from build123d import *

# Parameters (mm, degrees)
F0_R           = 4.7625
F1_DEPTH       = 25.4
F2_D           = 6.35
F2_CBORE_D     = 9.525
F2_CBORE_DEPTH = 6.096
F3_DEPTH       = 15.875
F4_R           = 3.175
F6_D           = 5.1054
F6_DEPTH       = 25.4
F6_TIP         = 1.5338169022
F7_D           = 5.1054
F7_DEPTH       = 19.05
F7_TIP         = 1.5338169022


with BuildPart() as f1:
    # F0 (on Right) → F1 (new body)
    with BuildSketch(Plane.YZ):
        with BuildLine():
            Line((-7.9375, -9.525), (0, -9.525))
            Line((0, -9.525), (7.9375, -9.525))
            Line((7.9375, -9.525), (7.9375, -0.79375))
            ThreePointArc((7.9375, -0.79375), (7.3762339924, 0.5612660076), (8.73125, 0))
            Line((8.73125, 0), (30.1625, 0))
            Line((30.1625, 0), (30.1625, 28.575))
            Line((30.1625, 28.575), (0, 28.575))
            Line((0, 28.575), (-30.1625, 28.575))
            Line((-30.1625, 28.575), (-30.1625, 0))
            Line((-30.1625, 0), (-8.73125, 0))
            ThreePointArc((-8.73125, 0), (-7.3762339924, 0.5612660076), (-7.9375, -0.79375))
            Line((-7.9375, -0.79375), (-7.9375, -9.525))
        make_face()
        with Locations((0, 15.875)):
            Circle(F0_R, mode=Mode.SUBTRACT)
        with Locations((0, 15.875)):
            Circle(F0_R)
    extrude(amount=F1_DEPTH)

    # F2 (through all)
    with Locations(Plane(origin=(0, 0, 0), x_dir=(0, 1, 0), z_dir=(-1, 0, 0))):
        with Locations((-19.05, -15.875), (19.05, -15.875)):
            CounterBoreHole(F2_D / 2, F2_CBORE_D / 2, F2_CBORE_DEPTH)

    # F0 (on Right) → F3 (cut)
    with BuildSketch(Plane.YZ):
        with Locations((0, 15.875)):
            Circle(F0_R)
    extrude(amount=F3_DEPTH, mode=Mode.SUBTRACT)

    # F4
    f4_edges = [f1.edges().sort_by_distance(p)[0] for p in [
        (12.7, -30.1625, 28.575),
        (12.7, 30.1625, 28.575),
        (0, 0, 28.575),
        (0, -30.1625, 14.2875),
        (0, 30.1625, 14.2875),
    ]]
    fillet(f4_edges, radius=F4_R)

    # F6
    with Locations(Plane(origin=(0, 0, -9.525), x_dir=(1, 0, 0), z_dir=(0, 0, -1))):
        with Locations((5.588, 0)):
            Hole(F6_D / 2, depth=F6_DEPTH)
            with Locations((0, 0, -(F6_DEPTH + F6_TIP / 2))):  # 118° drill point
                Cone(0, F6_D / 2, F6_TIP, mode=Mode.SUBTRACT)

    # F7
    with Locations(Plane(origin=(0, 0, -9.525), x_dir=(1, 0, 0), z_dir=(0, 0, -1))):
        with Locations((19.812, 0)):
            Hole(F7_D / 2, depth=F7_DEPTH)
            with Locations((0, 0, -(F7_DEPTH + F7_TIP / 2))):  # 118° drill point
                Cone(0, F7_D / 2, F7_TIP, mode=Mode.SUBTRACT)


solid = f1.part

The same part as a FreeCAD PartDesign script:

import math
import FreeCAD as App
import Part
import Sketcher

V = App.Vector
Q = App.Units.Quantity


def edges_at(feature, points):
    """Names of the edges that pass closest to the given points."""
    edges = feature.Shape.Edges
    near = lambda p: min(range(len(edges)), key=lambda i: edges[i].distToShape(Part.Vertex(*p))[0])
    return sorted({f"Edge{near(p) + 1}" for p in points})

doc = App.newDocument("Part")
body = doc.addObject("PartDesign::Body", "Body")

sketch1 = body.newObject("Sketcher::SketchObject", "Sketch")
sketch1.AttachmentSupport = (doc.getObject("YZ_Plane"), [""])
sketch1.MapMode = "FlatFace"
sketch1.addGeometry(Part.LineSegment(V(-7.9, -9.5, 0), V(7.9, -9.5, 0)), False)
sketch1.addGeometry(Part.LineSegment(V(7.9, -9.5, 0), V(7.9, -0.8, 0)), False)
sketch1.addGeometry(Part.ArcOfCircle(Part.Circle(V(7.9, 0, 0), V(0, 0, 1), 0.8), math.radians(0), math.radians(270)), False)
sketch1.addGeometry(Part.LineSegment(V(8.7, 0, 0), V(30.2, 0, 0)), False)
sketch1.addGeometry(Part.LineSegment(V(30.2, 0, 0), V(30.2, 28.6, 0)), False)
sketch1.addGeometry(Part.LineSegment(V(30.2, 28.6, 0), V(-30.2, 28.6, 0)), False)
sketch1.addGeometry(Part.LineSegment(V(-30.2, 28.6, 0), V(-30.2, 0, 0)), False)
sketch1.addGeometry(Part.LineSegment(V(-30.2, 0, 0), V(-8.7, 0, 0)), False)
sketch1.addGeometry(Part.ArcOfCircle(Part.Circle(V(-7.9, 0, 0), V(0, 0, 1), 0.8), math.radians(-90), math.radians(180)), False)
sketch1.addGeometry(Part.LineSegment(V(-7.9, -0.8, 0), V(-7.9, -9.5, 0)), False)
sketch1.addConstraint(Sketcher.Constraint("Coincident", 0, 2, 1, 1))
sketch1.addConstraint(Sketcher.Constraint("Coincident", 1, 2, 2, 2))
sketch1.addConstraint(Sketcher.Constraint("Coincident", 2, 1, 3, 1))
sketch1.addConstraint(Sketcher.Constraint("Coincident", 3, 2, 4, 1))
sketch1.addConstraint(Sketcher.Constraint("Coincident", 4, 2, 5, 1))
sketch1.addConstraint(Sketcher.Constraint("Coincident", 5, 2, 6, 1))
sketch1.addConstraint(Sketcher.Constraint("Coincident", 6, 2, 7, 1))
sketch1.addConstraint(Sketcher.Constraint("Coincident", 7, 2, 8, 2))
sketch1.addConstraint(Sketcher.Constraint("Coincident", 8, 1, 9, 1))
sketch1.addConstraint(Sketcher.Constraint("Coincident", 9, 2, 0, 1))
sketch1.addConstraint(Sketcher.Constraint("Horizontal", 0))
sketch1.addConstraint(Sketcher.Constraint("Vertical", 1))
sketch1.addConstraint(Sketcher.Constraint("Horizontal", 3))
sketch1.addConstraint(Sketcher.Constraint("Vertical", 4))
sketch1.addConstraint(Sketcher.Constraint("Horizontal", 5))
sketch1.addConstraint(Sketcher.Constraint("Vertical", 6))
sketch1.addConstraint(Sketcher.Constraint("Horizontal", 7))
sketch1.addConstraint(Sketcher.Constraint("Vertical", 9))
sketch1.addConstraint(Sketcher.Constraint("Equal", 2, 8))
sketch1.addConstraint(Sketcher.Constraint("Symmetric", 2, 3, 8, 3, -1, 1))
sketch1.addConstraint(Sketcher.Constraint("Symmetric", 3, 2, 6, 2, -1, 1))
sketch1.addConstraint(Sketcher.Constraint("Symmetric", 1, 2, 8, 1, -2))
sketch1.addConstraint(Sketcher.Constraint("PointOnObject", 2, 1, -1))
sketch1.addConstraint(Sketcher.Constraint("Vertical", 2, 3, 0, 2))
sketch1.addConstraint(Sketcher.Constraint("Radius", 2, Q("0.03125 in")))
sketch1.addConstraint(Sketcher.Constraint("DistanceX", 8, 3, 3, 2, Q("1.5 in")))
sketch1.addConstraint(Sketcher.Constraint("DistanceY", 0, 2, 4, 2, Q("1.5 in")))
sketch1.addConstraint(Sketcher.Constraint("DistanceX", 0, 1, 0, 2, Q("0.625 in")))
sketch1.addConstraint(Sketcher.Constraint("DistanceY", 1, 1, 1, 2, Q("0.34375 in")))
pad1 = body.newObject("PartDesign::Pad", "Pad")
pad1.Profile = sketch1
pad1.Length = Q("1 in")

sketch2 = body.newObject("Sketcher::SketchObject", "Sketch001")
sketch2.AttachmentSupport = (doc.getObject("YZ_Plane"), [""])
sketch2.MapMode = "FlatFace"
sketch2.addGeometry(Part.Circle(V(-19.1, 15.9, 0), V(0, 0, 1), 3.2), False)
sketch2.addGeometry(Part.Circle(V(19.1, 15.9, 0), V(0, 0, 1), 3.2), False)
sketch2.addConstraint(Sketcher.Constraint("Equal", 0, 1))
sketch2.addConstraint(Sketcher.Constraint("Symmetric", 0, 3, 1, 3, -2))
sketch2.addConstraint(Sketcher.Constraint("Diameter", 0, Q("0.25 in")))
sketch2.addConstraint(Sketcher.Constraint("DistanceX", 0, 3, 1, 3, Q("1.5 in")))
sketch2.addConstraint(Sketcher.Constraint("DistanceY", -1, 1, 0, 3, Q("0.625 in")))
doc.recompute()
hole = body.newObject("PartDesign::Hole", "Hole")
hole.Profile = sketch2
hole.ThreadType = "None"
hole.Diameter = Q("0.25 in")
hole.DepthType = "ThroughAll"
hole.HoleCutType = "Counterbore"
hole.HoleCutDiameter = Q("0.375 in")
hole.HoleCutDepth = Q("0.24 in")
hole.Reversed = True

sketch3 = body.newObject("Sketcher::SketchObject", "Sketch002")
sketch3.AttachmentSupport = (doc.getObject("YZ_Plane"), [""])
sketch3.MapMode = "FlatFace"
sketch3.addGeometry(Part.Circle(V(0, 15.9, 0), V(0, 0, 1), 4.8), False)
sketch3.addConstraint(Sketcher.Constraint("PointOnObject", 0, 3, -2))
sketch3.addConstraint(Sketcher.Constraint("Diameter", 0, Q("0.375 in")))
sketch3.addConstraint(Sketcher.Constraint("DistanceY", -1, 1, 0, 3, Q("0.625 in")))
pocket1 = body.newObject("PartDesign::Pocket", "Pocket")
pocket1.Profile = sketch3
pocket1.Length = Q("0.625 in")
pocket1.Reversed = True
doc.recompute()

fillet = body.newObject("PartDesign::Fillet", "Fillet")
fillet.Base = (pocket1, edges_at(pocket1, [
    (12.7, -30.163, 28.575),
    (12.7, 30.163, 28.575),
    (0, 0, 28.575),
    (0, -30.163, 14.287),
    (0, 30.163, 14.287),
]))
fillet.Radius = Q("0.125 in")

sketch4 = body.newObject("Sketcher::SketchObject", "Sketch003")
sketch4.AttachmentSupport = (doc.getObject("XY_Plane"), [""])
sketch4.MapMode = "FlatFace"
sketch4.AttachmentOffset = App.Placement(V(0, 0, -0.375 * 25.4), App.Rotation())
sketch4.addGeometry(Part.Circle(V(5.6, 0, 0), V(0, 0, 1), 2.6), False)
sketch4.addConstraint(Sketcher.Constraint("PointOnObject", 0, 3, -1))
sketch4.addConstraint(Sketcher.Constraint("Diameter", 0, Q("0.201 in")))
sketch4.addConstraint(Sketcher.Constraint("DistanceX", -1, 1, 0, 3, Q("0.22 in")))
doc.recompute()
hole2 = body.newObject("PartDesign::Hole", "Hole001")
hole2.Profile = sketch4
hole2.ThreadType = "None"
hole2.Diameter = Q("0.201 in")
hole2.DepthType = "Dimension"
hole2.Depth = Q("1 in")
hole2.DrillPoint = "Angled"
hole2.DrillPointAngle = 118
hole2.Reversed = True

sketch5 = body.newObject("Sketcher::SketchObject", "Sketch004")
sketch5.AttachmentSupport = (doc.getObject("XY_Plane"), [""])
sketch5.MapMode = "FlatFace"
sketch5.AttachmentOffset = App.Placement(V(0, 0, -0.375 * 25.4), App.Rotation())
sketch5.addGeometry(Part.Circle(V(19.8, 0, 0), V(0, 0, 1), 2.6), False)
sketch5.addConstraint(Sketcher.Constraint("PointOnObject", 0, 3, -1))
sketch5.addConstraint(Sketcher.Constraint("Diameter", 0, Q("0.201 in")))
sketch5.addConstraint(Sketcher.Constraint("DistanceX", -1, 1, 0, 3, Q("0.78 in")))
doc.recompute()
hole3 = body.newObject("PartDesign::Hole", "Hole002")
hole3.Profile = sketch5
hole3.ThreadType = "None"
hole3.Diameter = Q("0.201 in")
hole3.DepthType = "Dimension"
hole3.Depth = Q("0.75 in")
hole3.DrillPoint = "Angled"
hole3.DrillPointAngle = 118
hole3.Reversed = True

doc.recompute()
